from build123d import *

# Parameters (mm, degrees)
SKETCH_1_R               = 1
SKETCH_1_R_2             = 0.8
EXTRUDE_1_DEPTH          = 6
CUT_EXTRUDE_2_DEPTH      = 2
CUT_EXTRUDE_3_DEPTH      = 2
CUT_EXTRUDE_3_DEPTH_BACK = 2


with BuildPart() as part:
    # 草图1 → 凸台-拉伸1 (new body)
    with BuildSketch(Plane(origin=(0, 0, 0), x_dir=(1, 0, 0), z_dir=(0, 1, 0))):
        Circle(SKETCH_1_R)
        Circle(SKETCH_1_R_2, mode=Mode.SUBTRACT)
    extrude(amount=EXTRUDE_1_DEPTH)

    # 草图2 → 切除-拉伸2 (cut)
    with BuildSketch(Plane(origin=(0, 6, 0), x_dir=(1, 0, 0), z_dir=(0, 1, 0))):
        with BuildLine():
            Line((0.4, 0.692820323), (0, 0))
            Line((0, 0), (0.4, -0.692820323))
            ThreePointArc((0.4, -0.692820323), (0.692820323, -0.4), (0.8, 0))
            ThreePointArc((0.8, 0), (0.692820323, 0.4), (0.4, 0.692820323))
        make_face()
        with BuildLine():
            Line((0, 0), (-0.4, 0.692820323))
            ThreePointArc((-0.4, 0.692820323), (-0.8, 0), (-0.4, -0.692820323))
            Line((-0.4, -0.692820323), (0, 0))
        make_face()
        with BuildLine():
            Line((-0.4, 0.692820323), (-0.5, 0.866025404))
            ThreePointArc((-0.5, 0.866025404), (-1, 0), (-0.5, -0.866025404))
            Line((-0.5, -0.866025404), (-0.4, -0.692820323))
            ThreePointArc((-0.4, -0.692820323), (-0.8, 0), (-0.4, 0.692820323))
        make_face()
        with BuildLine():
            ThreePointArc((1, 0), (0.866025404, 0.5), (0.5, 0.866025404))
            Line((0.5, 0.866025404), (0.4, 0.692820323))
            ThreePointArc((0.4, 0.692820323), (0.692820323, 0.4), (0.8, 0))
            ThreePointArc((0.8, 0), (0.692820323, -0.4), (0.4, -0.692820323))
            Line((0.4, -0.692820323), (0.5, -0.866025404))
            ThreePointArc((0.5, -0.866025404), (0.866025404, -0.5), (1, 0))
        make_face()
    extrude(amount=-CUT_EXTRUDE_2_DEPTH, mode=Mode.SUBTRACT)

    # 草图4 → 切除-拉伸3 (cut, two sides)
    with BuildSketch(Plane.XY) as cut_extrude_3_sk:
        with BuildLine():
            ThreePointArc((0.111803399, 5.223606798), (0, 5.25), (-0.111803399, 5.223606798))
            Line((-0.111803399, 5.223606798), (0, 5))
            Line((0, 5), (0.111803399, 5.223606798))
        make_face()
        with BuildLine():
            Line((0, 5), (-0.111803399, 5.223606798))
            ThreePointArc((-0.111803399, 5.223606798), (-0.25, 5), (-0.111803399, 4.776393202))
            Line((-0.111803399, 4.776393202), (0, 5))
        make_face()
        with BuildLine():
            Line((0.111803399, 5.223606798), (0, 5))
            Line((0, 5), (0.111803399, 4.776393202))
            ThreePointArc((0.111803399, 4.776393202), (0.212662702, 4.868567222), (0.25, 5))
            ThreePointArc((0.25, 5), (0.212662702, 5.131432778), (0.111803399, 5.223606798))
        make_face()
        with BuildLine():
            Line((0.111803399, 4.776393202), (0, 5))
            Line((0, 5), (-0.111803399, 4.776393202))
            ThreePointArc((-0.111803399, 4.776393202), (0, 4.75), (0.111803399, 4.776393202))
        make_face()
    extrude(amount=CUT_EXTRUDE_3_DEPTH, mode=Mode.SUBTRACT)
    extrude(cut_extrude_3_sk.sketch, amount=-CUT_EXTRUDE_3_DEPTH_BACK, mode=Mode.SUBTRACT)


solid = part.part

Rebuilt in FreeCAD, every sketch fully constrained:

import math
import FreeCAD as App
import Part
import Sketcher

V = App.Vector
Q = App.Units.Quantity

doc = App.newDocument("Part")
body = doc.addObject("PartDesign::Body", "Body")

# Sketch on XZ plane
sketch1 = doc.addObject("Sketcher::SketchObject", "Sketch")
body.addObject(sketch1)
sketch1.AttachmentSupport = (doc.XZ_Plane, [""])
sketch1.MapMode = "FlatFace"
sketch1.addGeometry([
    Part.Circle(V(0, 0, 0), V(0, 0, 1), 1),
    Part.Circle(V(0, 0, 0), V(0, 0, 1), 0.8),
], False)
sketch1.addConstraint([
    Sketcher.Constraint("Coincident", 0, 3, -1, 1),
    Sketcher.Constraint("Coincident", 1, 3, -1, 1),
    Sketcher.Constraint("Diameter", 0, 2.0),
    Sketcher.Constraint("Diameter", 1, 1.6),
])
pad1 = doc.addObject("PartDesign::Pad", "Pad")
body.addObject(pad1)
pad1.Profile = sketch1
pad1.Length = 6
pad1.Reversed = True

# Sketch on XZ plane
sketch2 = doc.addObject("Sketcher::SketchObject", "Sketch001")
body.addObject(sketch2)
sketch2.AttachmentSupport = (doc.XZ_Plane, [""])
sketch2.MapMode = "FlatFace"
sketch2.AttachmentOffset = App.Placement(V(0, 0, -6), App.Rotation())
sketch2.addGeometry([
    Part.LineSegment(V(0.4, -0.69282, 0), V(0, 0, 0)),  # 0
    Part.LineSegment(V(0, 0, 0), V(0.4, 0.69282, 0)),  # 1
    Part.LineSegment(V(0.4, 0.69282, 0), V(0.5, 0.866025, 0)),  # 2
    Part.ArcOfCircle(Part.Circle(V(0, 0, 0), V(0, 0, 1), 1), math.radians(0), math.radians(60)),  # 3
    Part.ArcOfCircle(Part.Circle(V(0, 0, 0), V(0, 0, 1), 1), math.radians(-60), math.radians(0)),  # 4
    Part.LineSegment(V(0.5, -0.866025, 0), V(0.4, -0.69282, 0)),  # 5
    Part.LineSegment(V(0, 0, 0), V(-0.4, -0.69282, 0)),  # 6
    Part.LineSegment(V(-0.4, -0.69282, 0), V(-0.5, -0.866025, 0)),  # 7
    Part.ArcOfCircle(Part.Circle(V(0, 0, 0), V(0, 0, 1), 1), math.radians(120), math.radians(240)),  # 8
    Part.LineSegment(V(-0.5, 0.866025, 0), V(-0.4, 0.69282, 0)),  # 9
    Part.LineSegment(V(-0.4, 0.69282, 0), V(0, 0, 0)),  # 10
], False)
sketch2.addConstraint([
    Sketcher.Constraint("Coincident", 0, 2, 1, 1),
    Sketcher.Constraint("Coincident", 1, 2, 2, 1),
    Sketcher.Constraint("Coincident", 2, 2, 3, 2),
    Sketcher.Constraint("Tangent", 3, 1, 4, 2),
    Sketcher.Constraint("Coincident", 4, 1, 5, 1),
    Sketcher.Constraint("Coincident", 5, 2, 0, 1),
    Sketcher.Constraint("Coincident", 6, 2, 7, 1),
    Sketcher.Constraint("Coincident", 7, 2, 8, 2),
    Sketcher.Constraint("Coincident", 8, 1, 9, 1),
    Sketcher.Constraint("Coincident", 9, 2, 10, 1),
    Sketcher.Constraint("Coincident", 10, 2, 6, 1),
    Sketcher.Constraint("Coincident", 3, 3, -1, 1),
    Sketcher.Constraint("Coincident", 8, 3, -1, 1),
    Sketcher.Constraint("Coincident", 0, 2, -1, 1),
    Sketcher.Constraint("Coincident", 10, 2, -1, 1),
    Sketcher.Constraint("Equal", 3, 4),
    Sketcher.Constraint("Equal", 4, 8),
    Sketcher.Constraint("Symmetric", 1, 2, 6, 2, -1, 1),
    Sketcher.Constraint("Symmetric", 5, 2, 9, 2, -1, 1),
    Sketcher.Constraint("Symmetric", 5, 2, 6, 2, -2),
    Sketcher.Constraint("PointOnObject", 3, 1, -1),
    Sketcher.Constraint("Parallel", 1, 2),
    Sketcher.Constraint("Parallel", 0, 5),
    Sketcher.Constraint("Parallel", 6, 7),
    Sketcher.Constraint("Parallel", 5, 9),
    Sketcher.Constraint("Radius", 3, 1.0),
    Sketcher.Constraint("Angle", 0, Q("120 deg")),
    Sketcher.Constraint("Distance", 0, 0.8),
])
pocket1 = doc.addObject("PartDesign::Pocket", "Pocket")
body.addObject(pocket1)
pocket1.Profile = sketch2
pocket1.Length = 2
pocket1.Reversed = True

# Sketch on XY plane
sketch3 = doc.addObject("Sketcher::SketchObject", "Sketch002")
body.addObject(sketch3)
sketch3.AttachmentSupport = (doc.XY_Plane, [""])
sketch3.MapMode = "FlatFace"
sketch3.addGeometry([
    Part.ArcOfCircle(Part.Circle(V(0, 5, 0), V(0, 0, 1), 0.25), math.radians(-116.565051), math.radians(-63.434949)),  # 0
    Part.ArcOfCircle(Part.Circle(V(0, 5, 0), V(0, 0, 1), 0.25), math.radians(-63.434949), math.radians(0)),  # 1
    Part.ArcOfCircle(Part.Circle(V(0, 5, 0), V(0, 0, 1), 0.25), math.radians(0), math.radians(63.434949)),  # 2
    Part.ArcOfCircle(Part.Circle(V(0, 5, 0), V(0, 0, 1), 0.25), math.radians(63.434949), math.radians(116.565051)),  # 3
    Part.ArcOfCircle(Part.Circle(V(0, 5, 0), V(0, 0, 1), 0.25), math.radians(116.565051), math.radians(243.434949)),  # 4
], False)
sketch3.addConstraint([
    Sketcher.Constraint("Tangent", 0, 2, 1, 1),
    Sketcher.Constraint("Tangent", 1, 2, 2, 1),
    Sketcher.Constraint("Tangent", 2, 2, 3, 1),
    Sketcher.Constraint("Tangent", 3, 2, 4, 1),
    Sketcher.Constraint("Tangent", 4, 2, 0, 1),
    Sketcher.Constraint("Coincident", 2, 3, 0, 3),
    Sketcher.Constraint("Symmetric", 2, 2, 3, 2, -2),
    Sketcher.Constraint("Horizontal", 4, 3, 1, 2),
    Sketcher.Constraint("Horizontal", 0, 2, 4, 2),
    Sketcher.Constraint("Vertical", 0, 2, 2, 2),
    Sketcher.Constraint("Radius", 0, 0.25),
    Sketcher.Constraint("DistanceY", -1, 1, 0, 3, 5.0),
    Sketcher.Constraint("DistanceX", -1, 1, 0, 2, 0.111803),
])
pocket2 = doc.addObject("PartDesign::Pocket", "Pocket001")
body.addObject(pocket2)
pocket2.Profile = sketch3
pocket2.Type = "ThroughAll"
pocket2.Midplane = True

doc.recompute()
